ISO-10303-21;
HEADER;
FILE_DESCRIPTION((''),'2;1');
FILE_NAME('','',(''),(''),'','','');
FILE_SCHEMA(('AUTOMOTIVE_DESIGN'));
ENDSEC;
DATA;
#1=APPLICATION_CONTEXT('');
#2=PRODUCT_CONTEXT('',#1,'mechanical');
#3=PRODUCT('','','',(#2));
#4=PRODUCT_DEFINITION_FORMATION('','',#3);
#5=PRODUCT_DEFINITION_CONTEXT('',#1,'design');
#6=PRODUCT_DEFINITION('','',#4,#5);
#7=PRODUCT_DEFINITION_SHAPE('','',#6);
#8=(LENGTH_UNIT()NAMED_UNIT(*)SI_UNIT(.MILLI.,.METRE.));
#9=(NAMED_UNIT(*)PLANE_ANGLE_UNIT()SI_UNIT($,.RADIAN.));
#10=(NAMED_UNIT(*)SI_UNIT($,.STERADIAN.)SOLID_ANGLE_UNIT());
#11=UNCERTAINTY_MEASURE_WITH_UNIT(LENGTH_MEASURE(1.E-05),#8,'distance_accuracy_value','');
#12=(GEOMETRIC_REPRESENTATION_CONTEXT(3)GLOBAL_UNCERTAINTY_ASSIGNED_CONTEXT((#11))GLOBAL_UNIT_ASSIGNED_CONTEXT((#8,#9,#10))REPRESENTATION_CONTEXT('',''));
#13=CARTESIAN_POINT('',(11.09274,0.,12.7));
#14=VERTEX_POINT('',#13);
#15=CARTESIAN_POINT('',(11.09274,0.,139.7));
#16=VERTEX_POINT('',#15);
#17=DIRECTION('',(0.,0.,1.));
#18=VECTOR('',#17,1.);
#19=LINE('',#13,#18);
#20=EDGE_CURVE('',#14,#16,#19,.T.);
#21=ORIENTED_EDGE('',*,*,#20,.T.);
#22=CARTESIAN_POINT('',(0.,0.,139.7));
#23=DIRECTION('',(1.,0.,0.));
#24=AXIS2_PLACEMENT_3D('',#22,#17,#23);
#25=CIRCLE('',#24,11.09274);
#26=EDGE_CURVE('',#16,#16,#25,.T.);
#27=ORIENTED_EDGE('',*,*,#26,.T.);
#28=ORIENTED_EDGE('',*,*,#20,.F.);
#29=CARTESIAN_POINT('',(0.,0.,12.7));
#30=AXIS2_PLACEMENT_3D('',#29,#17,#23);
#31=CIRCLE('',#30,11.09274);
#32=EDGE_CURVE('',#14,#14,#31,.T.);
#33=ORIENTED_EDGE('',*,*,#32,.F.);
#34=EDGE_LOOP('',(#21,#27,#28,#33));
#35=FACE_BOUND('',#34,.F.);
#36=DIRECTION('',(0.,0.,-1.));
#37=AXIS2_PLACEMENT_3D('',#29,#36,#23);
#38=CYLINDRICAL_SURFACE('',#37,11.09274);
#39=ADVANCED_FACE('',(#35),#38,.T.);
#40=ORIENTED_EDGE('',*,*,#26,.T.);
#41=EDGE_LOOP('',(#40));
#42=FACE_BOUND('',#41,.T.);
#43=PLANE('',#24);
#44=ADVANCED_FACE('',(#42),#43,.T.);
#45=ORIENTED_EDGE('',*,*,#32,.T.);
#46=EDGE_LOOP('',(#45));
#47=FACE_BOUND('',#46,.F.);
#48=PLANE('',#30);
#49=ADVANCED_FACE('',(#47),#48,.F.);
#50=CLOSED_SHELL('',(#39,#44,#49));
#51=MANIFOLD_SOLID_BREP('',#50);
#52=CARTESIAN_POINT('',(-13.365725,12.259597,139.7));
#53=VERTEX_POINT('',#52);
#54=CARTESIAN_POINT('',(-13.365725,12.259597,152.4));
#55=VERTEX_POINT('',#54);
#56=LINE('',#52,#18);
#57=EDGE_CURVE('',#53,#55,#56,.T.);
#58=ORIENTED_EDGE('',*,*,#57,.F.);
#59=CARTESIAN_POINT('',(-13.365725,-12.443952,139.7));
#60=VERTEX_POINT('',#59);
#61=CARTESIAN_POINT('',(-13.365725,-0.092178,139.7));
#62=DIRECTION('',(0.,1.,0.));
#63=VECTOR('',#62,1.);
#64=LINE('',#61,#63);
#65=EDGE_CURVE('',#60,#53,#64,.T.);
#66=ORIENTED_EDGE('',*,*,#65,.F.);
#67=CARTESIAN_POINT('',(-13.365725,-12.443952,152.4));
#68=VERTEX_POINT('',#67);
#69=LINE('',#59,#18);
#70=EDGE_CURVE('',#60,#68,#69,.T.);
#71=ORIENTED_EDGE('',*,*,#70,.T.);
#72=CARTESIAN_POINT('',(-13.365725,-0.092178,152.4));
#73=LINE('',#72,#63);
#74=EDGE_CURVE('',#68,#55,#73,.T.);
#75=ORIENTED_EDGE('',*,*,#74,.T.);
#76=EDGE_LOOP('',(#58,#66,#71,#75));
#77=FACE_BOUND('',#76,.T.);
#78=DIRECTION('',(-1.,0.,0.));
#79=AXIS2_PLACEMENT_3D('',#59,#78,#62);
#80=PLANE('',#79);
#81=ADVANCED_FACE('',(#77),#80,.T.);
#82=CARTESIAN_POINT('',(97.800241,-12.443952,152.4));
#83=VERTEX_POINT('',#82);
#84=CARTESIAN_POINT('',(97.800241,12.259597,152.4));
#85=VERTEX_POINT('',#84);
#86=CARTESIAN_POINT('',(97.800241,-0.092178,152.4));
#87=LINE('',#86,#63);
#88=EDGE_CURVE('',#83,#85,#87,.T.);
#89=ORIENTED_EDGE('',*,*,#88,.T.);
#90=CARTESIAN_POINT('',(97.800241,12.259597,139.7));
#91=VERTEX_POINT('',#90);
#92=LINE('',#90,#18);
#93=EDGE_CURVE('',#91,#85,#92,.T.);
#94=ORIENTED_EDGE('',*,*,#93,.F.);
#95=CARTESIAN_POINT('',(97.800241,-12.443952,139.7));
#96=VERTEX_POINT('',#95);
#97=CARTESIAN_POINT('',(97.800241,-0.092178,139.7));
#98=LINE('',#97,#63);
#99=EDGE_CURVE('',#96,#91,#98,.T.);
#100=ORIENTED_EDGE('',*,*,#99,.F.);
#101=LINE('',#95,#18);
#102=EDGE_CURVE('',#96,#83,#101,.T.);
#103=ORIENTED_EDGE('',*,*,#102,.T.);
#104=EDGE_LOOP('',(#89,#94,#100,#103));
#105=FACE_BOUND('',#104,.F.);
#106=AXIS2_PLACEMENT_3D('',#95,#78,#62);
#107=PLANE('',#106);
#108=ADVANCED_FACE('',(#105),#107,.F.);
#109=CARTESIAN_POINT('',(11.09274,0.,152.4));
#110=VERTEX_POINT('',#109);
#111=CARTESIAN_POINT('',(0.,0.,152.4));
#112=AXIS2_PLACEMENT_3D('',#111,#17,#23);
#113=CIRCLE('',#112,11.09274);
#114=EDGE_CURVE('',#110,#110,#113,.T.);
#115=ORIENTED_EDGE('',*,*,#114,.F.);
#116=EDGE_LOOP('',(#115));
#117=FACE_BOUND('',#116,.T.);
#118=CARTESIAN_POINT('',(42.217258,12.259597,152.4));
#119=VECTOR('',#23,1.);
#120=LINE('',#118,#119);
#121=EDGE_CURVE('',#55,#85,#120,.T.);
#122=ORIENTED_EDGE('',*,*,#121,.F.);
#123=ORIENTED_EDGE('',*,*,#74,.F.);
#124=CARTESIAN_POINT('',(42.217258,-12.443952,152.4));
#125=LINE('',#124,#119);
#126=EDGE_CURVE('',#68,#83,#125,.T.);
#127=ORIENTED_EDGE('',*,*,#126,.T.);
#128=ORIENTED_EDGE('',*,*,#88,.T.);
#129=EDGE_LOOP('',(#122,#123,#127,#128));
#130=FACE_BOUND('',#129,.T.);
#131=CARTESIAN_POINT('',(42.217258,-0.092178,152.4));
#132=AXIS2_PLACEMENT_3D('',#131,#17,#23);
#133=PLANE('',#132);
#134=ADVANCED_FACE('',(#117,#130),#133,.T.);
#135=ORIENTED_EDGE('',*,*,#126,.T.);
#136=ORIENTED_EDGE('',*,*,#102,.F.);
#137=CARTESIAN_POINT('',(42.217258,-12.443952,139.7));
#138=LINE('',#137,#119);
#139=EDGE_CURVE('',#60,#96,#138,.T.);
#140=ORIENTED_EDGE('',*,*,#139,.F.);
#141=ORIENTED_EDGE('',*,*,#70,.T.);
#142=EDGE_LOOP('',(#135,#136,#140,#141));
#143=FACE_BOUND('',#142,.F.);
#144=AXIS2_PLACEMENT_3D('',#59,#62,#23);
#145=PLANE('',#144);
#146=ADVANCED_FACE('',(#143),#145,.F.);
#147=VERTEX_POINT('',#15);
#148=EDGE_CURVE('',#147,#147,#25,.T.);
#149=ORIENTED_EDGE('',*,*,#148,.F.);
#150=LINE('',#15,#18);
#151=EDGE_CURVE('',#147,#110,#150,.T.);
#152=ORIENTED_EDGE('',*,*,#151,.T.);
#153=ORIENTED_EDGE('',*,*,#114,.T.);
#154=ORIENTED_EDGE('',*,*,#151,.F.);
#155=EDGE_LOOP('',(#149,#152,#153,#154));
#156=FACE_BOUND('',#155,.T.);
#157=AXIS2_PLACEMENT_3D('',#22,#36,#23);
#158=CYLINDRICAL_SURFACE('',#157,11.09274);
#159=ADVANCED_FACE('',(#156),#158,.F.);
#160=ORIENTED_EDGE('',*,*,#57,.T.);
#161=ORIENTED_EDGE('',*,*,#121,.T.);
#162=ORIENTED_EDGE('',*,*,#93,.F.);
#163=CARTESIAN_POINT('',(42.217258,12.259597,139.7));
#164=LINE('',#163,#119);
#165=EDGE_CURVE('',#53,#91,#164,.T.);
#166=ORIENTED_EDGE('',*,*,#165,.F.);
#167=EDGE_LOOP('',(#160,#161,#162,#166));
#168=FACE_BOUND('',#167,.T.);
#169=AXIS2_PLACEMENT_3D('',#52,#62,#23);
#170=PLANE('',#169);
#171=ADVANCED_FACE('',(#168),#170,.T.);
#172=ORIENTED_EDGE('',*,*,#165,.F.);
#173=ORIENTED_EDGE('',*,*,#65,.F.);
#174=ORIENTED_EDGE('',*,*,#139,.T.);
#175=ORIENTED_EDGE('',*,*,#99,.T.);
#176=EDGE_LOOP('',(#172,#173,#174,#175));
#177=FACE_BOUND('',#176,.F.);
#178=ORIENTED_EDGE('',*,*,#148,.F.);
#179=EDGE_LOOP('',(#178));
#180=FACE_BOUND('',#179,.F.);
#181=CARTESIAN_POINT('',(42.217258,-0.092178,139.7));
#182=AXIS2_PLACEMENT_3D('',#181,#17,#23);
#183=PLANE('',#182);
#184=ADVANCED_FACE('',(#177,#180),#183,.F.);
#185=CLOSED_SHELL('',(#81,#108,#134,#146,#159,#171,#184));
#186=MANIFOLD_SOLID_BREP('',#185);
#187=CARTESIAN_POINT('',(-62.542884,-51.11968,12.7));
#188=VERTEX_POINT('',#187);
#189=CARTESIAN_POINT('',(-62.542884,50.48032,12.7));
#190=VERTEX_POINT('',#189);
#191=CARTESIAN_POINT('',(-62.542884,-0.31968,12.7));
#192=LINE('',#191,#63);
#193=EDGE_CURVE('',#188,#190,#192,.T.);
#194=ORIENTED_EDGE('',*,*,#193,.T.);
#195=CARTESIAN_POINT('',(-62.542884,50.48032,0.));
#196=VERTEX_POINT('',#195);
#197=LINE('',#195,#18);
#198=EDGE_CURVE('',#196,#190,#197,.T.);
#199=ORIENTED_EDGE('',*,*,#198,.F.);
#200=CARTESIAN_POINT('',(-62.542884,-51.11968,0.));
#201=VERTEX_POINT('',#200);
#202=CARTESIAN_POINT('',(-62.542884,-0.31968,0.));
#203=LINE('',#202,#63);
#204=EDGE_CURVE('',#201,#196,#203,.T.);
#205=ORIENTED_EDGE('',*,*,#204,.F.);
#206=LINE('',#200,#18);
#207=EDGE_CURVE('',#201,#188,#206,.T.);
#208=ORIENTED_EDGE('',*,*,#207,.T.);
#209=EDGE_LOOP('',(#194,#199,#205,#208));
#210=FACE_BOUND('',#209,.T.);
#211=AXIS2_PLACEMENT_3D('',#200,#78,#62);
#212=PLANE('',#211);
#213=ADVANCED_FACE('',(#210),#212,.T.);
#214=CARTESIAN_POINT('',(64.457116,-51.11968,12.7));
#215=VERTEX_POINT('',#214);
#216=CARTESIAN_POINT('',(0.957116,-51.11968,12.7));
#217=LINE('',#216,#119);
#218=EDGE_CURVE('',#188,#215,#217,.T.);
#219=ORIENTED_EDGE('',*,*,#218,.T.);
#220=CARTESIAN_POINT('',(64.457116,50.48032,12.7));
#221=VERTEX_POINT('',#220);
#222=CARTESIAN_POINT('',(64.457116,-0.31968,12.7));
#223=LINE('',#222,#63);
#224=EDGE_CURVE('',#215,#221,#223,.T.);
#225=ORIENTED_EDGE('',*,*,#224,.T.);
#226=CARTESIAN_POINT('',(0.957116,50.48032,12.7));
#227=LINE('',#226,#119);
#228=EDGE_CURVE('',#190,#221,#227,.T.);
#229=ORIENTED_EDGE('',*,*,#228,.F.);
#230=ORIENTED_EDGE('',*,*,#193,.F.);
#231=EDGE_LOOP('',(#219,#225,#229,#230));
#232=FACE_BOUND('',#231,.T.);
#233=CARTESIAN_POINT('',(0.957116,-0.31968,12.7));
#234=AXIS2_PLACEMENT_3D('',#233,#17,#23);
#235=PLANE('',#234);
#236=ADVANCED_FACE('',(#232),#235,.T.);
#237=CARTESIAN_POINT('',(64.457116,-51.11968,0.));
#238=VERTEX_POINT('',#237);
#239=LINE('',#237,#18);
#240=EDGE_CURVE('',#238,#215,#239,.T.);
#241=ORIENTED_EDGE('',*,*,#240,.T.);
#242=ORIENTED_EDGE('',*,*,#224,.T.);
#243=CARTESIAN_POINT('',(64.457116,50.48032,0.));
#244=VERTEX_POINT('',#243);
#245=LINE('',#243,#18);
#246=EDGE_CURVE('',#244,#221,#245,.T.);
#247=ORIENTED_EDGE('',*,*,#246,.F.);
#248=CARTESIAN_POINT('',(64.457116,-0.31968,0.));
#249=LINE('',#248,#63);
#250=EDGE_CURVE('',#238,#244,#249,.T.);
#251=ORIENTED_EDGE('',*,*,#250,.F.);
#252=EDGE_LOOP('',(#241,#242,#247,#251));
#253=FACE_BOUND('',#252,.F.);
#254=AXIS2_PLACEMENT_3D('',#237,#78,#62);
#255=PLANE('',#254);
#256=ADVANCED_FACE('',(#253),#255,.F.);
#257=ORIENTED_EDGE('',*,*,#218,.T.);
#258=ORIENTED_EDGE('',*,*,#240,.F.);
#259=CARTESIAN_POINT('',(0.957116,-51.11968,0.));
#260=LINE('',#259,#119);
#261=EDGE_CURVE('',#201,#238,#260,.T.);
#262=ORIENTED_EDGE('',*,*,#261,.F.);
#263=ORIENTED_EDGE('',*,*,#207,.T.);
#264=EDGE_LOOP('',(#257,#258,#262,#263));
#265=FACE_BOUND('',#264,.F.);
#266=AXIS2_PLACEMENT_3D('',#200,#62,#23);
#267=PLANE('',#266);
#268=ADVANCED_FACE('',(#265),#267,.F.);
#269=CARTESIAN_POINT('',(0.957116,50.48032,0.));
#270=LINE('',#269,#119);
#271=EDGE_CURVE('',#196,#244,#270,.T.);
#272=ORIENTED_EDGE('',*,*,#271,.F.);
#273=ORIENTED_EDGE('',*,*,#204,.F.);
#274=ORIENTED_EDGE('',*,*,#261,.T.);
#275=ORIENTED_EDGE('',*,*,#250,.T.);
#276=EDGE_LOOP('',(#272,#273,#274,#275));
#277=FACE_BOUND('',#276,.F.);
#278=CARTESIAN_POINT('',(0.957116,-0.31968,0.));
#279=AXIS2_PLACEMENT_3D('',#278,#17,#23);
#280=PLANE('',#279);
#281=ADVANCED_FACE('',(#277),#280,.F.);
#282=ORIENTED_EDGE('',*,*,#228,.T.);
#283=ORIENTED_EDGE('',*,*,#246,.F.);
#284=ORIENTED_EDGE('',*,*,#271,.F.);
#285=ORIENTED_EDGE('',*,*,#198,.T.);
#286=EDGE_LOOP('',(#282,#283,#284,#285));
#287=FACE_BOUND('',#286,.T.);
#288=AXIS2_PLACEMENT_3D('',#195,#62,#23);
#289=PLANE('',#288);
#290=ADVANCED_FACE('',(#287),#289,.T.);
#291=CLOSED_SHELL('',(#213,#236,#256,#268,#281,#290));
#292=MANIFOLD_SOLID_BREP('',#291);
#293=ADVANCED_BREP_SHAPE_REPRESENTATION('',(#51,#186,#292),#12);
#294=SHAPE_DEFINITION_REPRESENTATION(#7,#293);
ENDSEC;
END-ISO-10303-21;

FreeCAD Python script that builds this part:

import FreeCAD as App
import Part
import Sketcher
from FreeCAD import Vector
Q = App.Units.Quantity


def add_polygon(sketch, points):
    """Adds a closed chain of lines whose ends are joined by coincident constraints."""
    first, n = sketch.GeometryCount, len(points)
    for a, b in zip(points, points[1:] + points[:1]):
        sketch.addGeometry(Part.LineSegment(App.Vector(*a, 0), App.Vector(*b, 0)), False)
    for i in range(n):
        sketch.addConstraint(Sketcher.Constraint("Coincident", first + i, 2, first + (i + 1) % n, 1))

doc = App.newDocument("Part")
params = doc.addObject("Spreadsheet::Sheet", "Params")
for row, (alias, value) in enumerate([
    ("sketch1_width", "5 in"),
    ("sketch1_height", "4 in"),
    ("pad1_length", "0.5 in"),
    ("pad2_length", "5 in"),
    ("pad3_length", "0.5 in"),
], start=1):
    params.set(f"A{row}", alias)
    params.set(f"B{row}", "=" + value)
    params.setAlias(f"B{row}", alias)

body = doc.addObject("PartDesign::Body", "Body")

sketch1 = body.newObject("Sketcher::SketchObject", "Sketch")
sketch1.AttachmentSupport = (doc.getObject("XY_Plane"), [""])
sketch1.MapMode = "FlatFace"
add_polygon(sketch1, [(-63, 50), (-63, -51), (64, -51), (64, 50)])
sketch1.addConstraint(Sketcher.Constraint("Vertical", 0))
sketch1.addConstraint(Sketcher.Constraint("Horizontal", 1))
sketch1.addConstraint(Sketcher.Constraint("Vertical", 2))
sketch1.addConstraint(Sketcher.Constraint("Horizontal", 3))
sketch1.addConstraint(Sketcher.Constraint("DistanceX", 1, 1, 1, 2, Q("5 in")))
sketch1.addConstraint(Sketcher.Constraint("DistanceY", 0, 2, 0, 1, Q("4 in")))
sketch1.addConstraint(Sketcher.Constraint("DistanceY", 0, 2, -1, 1, Q("51.11968 mm")))
sketch1.addConstraint(Sketcher.Constraint("DistanceX", 0, 2, -1, 1, Q("62.542884 mm")))
sketch1.setExpression("Constraints[8]", "Params.sketch1_width")
sketch1.setExpression("Constraints[9]", "Params.sketch1_height")
pad1 = body.newObject("PartDesign::Pad", "Pad")
pad1.Profile = sketch1
pad1.setExpression("Length", "Params.pad1_length")
body2 = doc.addObject("PartDesign::Body", "Body001")

sketch2 = body2.newObject("Sketcher::SketchObject", "Sketch001")
sketch2.AttachmentSupport = (doc.getObject("XY_Plane001"), [""])
sketch2.MapMode = "FlatFace"
sketch2.AttachmentOffset = App.Placement(Vector(0, 0, 0.5 * 25.4), App.Rotation())
sketch2.addGeometry(Part.Circle(Vector(0, 0, 0), Vector(0, 0, 1), 11), False)
sketch2.addConstraint(Sketcher.Constraint("Coincident", 0, 3, -1, 1))
sketch2.addConstraint(Sketcher.Constraint("Diameter", 0, Q("22.18548 mm")))
pad2 = body2.newObject("PartDesign::Pad", "Pad001")
pad2.Profile = sketch2
pad2.setExpression("Length", "Params.pad2_length")
body3 = doc.addObject("PartDesign::Body", "Body002")

sketch3 = body3.newObject("Sketcher::SketchObject", "Sketch002")
sketch3.AttachmentSupport = (doc.getObject("XY_Plane002"), [""])
sketch3.MapMode = "FlatFace"
sketch3.AttachmentOffset = App.Placement(Vector(0, 0, 5.5 * 25.4), App.Rotation())
add_polygon(sketch3, [(-13, 12), (-13, -12), (98, -12), (98, 12)])
sketch3.addGeometry(Part.Circle(Vector(0, 0, 0), Vector(0, 0, 1), 11), False)
sketch3.addConstraint(Sketcher.Constraint("Vertical", 0))
sketch3.addConstraint(Sketcher.Constraint("Horizontal", 1))
sketch3.addConstraint(Sketcher.Constraint("Vertical", 2))
sketch3.addConstraint(Sketcher.Constraint("Horizontal", 3))
sketch3.addConstraint(Sketcher.Constraint("Coincident", 4, 3, -1, 1))
sketch3.addConstraint(Sketcher.Constraint("Diameter", 4, Q("22.18548 mm")))
sketch3.addConstraint(Sketcher.Constraint("DistanceY", 0, 2, 0, 1, Q("24.703549 mm")))
sketch3.addConstraint(Sketcher.Constraint("DistanceX", 1, 1, 1, 2, Q("111.165965 mm")))
sketch3.addConstraint(Sketcher.Constraint("DistanceX", -1, 1, 1, 2, Q("97.800241 mm")))
sketch3.addConstraint(Sketcher.Constraint("DistanceY", 0, 2, -1, 1, Q("12.443952 mm")))
pad3 = body3.newObject("PartDesign::Pad", "Pad002")
pad3.Profile = sketch3
pad3.setExpression("Length", "Params.pad3_length")

doc.recompute()
